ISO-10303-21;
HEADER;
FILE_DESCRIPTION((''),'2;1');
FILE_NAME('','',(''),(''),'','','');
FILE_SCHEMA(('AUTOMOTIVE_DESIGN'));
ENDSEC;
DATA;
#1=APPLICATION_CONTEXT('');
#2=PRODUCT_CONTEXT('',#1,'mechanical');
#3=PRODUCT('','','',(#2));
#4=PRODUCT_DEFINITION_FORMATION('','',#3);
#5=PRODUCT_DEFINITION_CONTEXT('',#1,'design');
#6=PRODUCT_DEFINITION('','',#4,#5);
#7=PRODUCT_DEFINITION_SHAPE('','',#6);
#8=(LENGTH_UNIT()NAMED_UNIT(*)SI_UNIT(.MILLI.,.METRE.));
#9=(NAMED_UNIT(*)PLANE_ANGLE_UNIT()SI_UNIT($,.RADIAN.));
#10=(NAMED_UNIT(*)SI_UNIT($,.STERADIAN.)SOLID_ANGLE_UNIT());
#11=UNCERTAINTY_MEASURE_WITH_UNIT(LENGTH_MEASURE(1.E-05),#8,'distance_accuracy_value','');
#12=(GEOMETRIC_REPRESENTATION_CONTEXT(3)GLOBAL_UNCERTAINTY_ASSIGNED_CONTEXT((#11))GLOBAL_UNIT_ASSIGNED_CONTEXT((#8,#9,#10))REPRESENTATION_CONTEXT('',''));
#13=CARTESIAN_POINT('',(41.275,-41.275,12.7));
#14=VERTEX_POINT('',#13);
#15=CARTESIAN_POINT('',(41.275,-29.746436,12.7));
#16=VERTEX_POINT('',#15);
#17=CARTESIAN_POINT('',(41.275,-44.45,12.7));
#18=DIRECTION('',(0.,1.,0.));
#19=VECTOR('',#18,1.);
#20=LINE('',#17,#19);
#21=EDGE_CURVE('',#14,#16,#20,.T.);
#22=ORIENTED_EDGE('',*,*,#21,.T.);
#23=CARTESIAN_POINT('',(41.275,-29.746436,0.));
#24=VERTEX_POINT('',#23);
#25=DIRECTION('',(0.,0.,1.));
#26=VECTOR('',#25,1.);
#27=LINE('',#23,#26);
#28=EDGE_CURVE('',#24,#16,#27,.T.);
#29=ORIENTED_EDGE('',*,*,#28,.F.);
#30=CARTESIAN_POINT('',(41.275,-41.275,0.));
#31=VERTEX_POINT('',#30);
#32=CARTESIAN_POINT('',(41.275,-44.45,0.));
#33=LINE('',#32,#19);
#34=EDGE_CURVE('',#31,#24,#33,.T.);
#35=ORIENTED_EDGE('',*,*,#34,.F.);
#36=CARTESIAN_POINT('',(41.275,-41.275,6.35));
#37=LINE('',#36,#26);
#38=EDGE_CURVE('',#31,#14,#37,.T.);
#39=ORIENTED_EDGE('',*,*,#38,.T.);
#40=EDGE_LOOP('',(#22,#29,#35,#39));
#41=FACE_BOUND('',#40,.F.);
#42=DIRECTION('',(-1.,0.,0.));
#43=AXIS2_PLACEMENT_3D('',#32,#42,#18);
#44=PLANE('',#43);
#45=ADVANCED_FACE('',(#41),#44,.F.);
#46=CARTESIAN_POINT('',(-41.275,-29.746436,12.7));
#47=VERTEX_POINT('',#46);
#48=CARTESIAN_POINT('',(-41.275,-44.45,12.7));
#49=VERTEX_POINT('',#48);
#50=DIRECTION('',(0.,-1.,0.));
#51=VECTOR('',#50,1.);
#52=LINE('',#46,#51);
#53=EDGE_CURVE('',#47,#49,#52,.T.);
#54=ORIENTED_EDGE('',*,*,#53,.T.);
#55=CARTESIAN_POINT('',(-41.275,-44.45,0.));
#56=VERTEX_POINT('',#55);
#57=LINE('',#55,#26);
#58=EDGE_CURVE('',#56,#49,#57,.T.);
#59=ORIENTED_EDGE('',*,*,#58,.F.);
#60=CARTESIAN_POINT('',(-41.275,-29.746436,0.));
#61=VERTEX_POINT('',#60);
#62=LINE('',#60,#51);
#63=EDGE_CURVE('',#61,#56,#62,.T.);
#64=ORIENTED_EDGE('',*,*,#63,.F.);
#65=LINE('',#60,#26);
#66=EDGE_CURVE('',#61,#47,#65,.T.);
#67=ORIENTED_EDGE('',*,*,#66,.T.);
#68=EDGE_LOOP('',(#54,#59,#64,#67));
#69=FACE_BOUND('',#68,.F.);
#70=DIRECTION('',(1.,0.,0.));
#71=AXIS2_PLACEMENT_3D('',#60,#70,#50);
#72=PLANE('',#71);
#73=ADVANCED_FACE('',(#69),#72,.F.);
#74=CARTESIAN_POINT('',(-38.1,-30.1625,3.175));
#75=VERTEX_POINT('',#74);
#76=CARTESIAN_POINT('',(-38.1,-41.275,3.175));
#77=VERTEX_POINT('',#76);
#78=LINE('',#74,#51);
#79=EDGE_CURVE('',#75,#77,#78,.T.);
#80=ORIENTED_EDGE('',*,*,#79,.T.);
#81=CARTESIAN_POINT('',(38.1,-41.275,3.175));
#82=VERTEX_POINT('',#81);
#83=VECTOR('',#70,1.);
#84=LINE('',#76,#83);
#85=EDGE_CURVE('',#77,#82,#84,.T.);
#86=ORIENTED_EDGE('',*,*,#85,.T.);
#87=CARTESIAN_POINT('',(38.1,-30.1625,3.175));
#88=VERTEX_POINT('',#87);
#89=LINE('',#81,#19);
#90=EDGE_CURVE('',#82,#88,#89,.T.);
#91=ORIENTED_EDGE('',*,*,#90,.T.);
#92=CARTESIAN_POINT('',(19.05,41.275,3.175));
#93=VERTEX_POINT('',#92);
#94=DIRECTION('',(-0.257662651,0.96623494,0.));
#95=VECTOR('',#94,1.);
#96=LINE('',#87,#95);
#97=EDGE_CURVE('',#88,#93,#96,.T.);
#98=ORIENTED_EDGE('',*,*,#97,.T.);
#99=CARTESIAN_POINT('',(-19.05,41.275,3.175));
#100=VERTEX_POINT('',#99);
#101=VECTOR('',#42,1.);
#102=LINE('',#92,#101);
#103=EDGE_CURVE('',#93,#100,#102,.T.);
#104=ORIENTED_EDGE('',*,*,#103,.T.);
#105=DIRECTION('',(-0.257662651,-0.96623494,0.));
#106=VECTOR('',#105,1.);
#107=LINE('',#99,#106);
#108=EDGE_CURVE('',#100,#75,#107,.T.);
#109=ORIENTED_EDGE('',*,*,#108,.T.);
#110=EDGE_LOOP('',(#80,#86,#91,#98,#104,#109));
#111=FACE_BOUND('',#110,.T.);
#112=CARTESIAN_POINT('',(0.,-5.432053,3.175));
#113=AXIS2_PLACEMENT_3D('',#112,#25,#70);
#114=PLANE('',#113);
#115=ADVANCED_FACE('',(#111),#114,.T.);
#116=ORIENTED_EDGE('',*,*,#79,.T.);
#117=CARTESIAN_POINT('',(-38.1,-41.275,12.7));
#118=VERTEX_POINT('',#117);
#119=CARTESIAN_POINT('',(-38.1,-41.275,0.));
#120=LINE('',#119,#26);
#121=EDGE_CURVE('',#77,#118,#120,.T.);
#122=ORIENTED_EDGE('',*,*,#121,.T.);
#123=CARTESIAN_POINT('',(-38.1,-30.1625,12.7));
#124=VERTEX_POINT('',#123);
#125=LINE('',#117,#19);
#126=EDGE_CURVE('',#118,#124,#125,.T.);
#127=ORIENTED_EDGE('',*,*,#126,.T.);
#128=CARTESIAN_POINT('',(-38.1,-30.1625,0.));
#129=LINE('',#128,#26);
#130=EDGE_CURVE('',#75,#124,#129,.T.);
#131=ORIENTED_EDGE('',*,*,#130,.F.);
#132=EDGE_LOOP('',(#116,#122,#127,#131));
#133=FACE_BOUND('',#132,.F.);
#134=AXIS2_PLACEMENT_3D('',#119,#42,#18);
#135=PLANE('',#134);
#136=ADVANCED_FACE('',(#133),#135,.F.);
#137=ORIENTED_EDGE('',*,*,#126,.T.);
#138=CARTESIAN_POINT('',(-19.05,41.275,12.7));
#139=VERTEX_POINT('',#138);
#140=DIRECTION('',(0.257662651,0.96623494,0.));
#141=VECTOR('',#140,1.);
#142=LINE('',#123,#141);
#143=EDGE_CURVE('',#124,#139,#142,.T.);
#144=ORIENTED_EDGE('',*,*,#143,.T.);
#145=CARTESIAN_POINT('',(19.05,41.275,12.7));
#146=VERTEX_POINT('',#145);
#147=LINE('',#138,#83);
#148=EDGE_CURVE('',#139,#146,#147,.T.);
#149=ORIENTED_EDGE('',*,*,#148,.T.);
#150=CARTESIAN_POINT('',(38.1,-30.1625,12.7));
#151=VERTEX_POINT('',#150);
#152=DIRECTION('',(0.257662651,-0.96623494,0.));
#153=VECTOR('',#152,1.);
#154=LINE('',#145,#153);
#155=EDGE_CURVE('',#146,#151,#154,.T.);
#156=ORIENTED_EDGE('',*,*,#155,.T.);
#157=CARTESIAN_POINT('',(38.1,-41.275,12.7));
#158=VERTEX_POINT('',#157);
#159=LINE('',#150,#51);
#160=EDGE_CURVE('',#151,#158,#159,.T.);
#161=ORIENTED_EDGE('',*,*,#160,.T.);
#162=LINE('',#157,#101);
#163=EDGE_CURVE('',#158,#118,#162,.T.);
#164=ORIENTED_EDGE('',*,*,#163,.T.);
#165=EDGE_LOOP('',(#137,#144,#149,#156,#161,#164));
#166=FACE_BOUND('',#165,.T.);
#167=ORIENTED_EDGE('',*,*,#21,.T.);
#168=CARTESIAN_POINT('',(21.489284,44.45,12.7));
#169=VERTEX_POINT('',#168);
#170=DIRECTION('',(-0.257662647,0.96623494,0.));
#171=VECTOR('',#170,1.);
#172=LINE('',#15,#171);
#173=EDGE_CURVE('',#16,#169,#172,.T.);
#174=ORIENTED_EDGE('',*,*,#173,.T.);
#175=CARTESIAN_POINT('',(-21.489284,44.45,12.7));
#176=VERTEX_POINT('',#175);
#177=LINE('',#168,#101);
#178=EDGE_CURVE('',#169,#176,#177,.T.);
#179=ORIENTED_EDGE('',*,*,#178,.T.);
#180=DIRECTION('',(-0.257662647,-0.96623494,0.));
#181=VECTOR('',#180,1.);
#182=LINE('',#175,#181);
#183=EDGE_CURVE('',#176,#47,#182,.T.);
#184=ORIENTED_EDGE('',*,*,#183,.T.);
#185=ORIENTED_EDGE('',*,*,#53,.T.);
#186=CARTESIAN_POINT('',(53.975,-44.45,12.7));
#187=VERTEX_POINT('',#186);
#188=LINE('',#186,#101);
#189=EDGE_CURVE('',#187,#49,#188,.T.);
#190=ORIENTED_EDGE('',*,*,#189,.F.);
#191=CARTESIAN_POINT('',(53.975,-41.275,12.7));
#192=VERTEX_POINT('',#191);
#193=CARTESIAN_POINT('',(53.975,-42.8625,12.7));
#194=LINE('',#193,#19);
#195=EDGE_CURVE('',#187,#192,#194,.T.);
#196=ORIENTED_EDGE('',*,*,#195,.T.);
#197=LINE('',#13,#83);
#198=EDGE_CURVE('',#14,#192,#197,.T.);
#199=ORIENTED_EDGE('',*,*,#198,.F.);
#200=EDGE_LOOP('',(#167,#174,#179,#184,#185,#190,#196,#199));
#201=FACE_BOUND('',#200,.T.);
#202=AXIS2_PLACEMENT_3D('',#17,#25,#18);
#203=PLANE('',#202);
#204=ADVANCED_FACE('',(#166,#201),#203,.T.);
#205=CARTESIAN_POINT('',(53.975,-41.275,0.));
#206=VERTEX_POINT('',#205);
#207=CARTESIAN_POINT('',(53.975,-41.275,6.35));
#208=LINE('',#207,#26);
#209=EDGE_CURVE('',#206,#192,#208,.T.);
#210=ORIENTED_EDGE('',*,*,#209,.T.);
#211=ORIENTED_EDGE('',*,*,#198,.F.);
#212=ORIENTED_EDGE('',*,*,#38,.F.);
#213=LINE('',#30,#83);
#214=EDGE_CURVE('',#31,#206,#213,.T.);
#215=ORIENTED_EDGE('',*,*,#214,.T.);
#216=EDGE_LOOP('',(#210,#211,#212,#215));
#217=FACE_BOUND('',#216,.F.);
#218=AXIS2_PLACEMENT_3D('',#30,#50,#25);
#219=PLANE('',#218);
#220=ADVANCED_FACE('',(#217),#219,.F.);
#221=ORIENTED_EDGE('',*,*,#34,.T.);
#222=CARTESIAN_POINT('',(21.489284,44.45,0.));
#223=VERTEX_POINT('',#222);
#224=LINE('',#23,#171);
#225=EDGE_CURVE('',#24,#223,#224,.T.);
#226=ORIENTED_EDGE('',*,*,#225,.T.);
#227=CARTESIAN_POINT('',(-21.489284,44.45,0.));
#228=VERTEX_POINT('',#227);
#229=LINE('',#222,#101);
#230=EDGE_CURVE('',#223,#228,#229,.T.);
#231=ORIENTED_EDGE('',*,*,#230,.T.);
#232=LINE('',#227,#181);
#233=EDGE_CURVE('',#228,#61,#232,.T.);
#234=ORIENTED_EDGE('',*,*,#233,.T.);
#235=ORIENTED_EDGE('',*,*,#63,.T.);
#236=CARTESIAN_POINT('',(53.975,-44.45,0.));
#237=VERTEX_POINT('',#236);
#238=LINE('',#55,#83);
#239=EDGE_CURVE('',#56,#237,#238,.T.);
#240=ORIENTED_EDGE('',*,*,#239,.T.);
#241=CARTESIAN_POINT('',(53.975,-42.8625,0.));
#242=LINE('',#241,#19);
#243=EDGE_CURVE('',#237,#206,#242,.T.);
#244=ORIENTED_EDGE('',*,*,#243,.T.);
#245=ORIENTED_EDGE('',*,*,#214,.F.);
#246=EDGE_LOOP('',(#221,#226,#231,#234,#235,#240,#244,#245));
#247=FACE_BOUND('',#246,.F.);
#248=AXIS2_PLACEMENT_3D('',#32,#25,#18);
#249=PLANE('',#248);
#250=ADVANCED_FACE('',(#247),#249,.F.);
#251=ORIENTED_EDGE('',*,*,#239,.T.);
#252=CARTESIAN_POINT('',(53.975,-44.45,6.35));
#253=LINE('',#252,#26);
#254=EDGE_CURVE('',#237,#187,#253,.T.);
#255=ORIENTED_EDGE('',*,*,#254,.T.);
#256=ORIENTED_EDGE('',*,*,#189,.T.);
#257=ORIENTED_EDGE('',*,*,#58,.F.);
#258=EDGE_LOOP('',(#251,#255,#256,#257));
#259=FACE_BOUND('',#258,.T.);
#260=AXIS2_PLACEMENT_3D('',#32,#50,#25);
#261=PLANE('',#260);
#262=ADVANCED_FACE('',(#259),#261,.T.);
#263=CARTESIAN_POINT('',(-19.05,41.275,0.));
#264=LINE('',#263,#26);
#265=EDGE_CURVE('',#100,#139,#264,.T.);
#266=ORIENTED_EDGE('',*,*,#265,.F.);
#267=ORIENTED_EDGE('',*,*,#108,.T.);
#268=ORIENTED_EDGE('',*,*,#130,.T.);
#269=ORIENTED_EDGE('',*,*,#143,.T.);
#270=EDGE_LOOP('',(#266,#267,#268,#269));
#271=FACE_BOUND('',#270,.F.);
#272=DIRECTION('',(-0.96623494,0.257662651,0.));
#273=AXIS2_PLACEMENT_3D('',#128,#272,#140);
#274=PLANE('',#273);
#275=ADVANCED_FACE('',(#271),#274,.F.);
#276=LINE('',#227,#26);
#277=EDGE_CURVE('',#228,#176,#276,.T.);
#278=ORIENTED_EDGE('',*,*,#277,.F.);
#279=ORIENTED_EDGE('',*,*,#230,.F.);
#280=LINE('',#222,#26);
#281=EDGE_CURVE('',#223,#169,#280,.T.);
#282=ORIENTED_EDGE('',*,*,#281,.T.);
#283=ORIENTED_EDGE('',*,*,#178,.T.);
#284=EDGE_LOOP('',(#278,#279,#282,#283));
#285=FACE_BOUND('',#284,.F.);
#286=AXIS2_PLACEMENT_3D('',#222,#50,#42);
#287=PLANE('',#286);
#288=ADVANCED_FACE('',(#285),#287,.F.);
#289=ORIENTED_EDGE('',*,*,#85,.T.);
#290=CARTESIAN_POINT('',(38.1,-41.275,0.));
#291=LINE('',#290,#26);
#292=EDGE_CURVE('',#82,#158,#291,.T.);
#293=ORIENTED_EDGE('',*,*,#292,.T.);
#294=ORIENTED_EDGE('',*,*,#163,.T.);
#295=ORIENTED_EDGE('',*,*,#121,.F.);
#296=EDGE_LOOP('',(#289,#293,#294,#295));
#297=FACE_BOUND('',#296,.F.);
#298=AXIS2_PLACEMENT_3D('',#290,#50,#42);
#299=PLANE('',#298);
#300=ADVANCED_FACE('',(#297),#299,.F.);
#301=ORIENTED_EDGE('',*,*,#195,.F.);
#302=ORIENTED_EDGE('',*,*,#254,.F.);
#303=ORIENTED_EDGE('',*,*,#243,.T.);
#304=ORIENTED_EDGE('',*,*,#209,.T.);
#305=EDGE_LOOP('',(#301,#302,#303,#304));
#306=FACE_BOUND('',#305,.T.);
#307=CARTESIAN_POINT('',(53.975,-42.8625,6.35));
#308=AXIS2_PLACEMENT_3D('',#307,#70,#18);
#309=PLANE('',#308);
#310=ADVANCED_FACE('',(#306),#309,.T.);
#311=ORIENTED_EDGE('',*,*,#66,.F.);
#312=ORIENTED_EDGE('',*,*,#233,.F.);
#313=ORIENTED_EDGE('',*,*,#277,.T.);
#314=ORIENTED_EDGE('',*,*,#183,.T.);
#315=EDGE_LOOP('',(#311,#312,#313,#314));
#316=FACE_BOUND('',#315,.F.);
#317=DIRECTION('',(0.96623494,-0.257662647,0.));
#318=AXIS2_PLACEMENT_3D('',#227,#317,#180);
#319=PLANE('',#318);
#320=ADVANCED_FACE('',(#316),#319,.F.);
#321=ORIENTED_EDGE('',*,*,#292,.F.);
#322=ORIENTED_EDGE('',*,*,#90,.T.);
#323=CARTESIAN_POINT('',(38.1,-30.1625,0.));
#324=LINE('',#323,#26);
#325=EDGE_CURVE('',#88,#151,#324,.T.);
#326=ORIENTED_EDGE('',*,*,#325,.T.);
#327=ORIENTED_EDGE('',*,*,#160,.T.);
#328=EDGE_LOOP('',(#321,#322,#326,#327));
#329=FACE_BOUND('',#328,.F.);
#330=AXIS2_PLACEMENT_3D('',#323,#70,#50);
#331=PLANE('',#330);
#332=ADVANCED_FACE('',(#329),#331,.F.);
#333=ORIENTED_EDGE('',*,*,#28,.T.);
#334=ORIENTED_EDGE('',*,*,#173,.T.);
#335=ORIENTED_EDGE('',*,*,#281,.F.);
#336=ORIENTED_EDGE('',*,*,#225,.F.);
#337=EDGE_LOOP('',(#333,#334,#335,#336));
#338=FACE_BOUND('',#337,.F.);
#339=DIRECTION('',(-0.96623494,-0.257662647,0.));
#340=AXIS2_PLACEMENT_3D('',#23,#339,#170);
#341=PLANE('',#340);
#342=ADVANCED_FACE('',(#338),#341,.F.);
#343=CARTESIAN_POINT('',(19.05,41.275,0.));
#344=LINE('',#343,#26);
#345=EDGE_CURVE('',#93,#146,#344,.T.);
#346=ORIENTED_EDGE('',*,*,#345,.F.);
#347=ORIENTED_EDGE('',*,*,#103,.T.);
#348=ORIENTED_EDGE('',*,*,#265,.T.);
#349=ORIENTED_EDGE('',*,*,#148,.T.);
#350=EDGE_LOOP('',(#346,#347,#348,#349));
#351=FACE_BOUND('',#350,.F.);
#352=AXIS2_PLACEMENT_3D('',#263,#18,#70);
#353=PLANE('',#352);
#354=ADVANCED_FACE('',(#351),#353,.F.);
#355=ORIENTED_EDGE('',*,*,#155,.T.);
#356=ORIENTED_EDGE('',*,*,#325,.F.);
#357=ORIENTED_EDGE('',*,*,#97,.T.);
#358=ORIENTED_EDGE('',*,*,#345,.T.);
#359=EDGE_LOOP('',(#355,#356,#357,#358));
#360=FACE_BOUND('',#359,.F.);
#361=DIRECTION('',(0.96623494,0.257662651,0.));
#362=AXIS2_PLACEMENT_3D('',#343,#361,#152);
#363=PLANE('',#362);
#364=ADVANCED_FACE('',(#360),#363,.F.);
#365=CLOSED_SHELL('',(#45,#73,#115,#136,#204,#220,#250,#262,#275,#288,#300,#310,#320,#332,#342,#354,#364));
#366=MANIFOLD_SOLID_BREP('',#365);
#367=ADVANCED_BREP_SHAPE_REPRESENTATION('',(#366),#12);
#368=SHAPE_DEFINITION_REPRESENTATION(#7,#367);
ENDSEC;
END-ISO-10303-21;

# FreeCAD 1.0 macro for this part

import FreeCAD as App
import Part
import Sketcher
from FreeCAD import Vector
Q = App.Units.Quantity


def add_polygon(sketch, points):
    """Adds a closed chain of lines whose ends are joined by coincident constraints."""
    first, n = sketch.GeometryCount, len(points)
    for a, b in zip(points, points[1:] + points[:1]):
        sketch.addGeometry(Part.LineSegment(App.Vector(*a, 0), App.Vector(*b, 0)), False)
    for i in range(n):
        sketch.addConstraint(Sketcher.Constraint("Coincident", first + i, 2, first + (i + 1) % n, 1))

doc = App.newDocument("Part")
body = doc.addObject("PartDesign::Body", "Body")

sketch1 = body.newObject("Sketcher::SketchObject", "Sketch")
sketch1.AttachmentSupport = (doc.getObject("XY_Plane"), [""])
sketch1.MapMode = "FlatFace"
add_polygon(sketch1, [(-38.1, -30.1625), (-38.1, -41.275), (38.1, -41.275), (38.1, -30.1625), (19.05, 41.275), (-19.05, 41.275)])
sketch1.addConstraint([
    Sketcher.Constraint("Vertical", 0),
    Sketcher.Constraint("Horizontal", 1),
    Sketcher.Constraint("Vertical", 2),
    Sketcher.Constraint("Horizontal", 4),
    Sketcher.Constraint("Symmetric", 2, 2, 5, 2, -2),
    Sketcher.Constraint("Equal", 3, 5),
    Sketcher.Constraint("DistanceX", 1, 1, 1, 2, Q("3 in")),
    Sketcher.Constraint("DistanceX", 4, 2, 4, 1, Q("1.5 in")),
    Sketcher.Constraint("DistanceY", 0, 2, 0, 1, Q("0.4375 in")),
    Sketcher.Constraint("DistanceY", 1, 2, 3, 2, Q("3.25 in")),
    Sketcher.Constraint("DistanceY", 0, 2, -1, 1, Q("1.625 in")),
])
pad1 = body.newObject("PartDesign::Pad", "Pad")
pad1.Profile = sketch1
pad1.Length = Q("0.125 in")

sketch2 = body.newObject("Sketcher::SketchObject", "Sketch001")
sketch2.AttachmentSupport = (doc.getObject("XY_Plane"), [""])
sketch2.MapMode = "FlatFace"
add_polygon(sketch2, [(21.489284, 44.45), (-21.489284, 44.45), (-41.275, -29.746436), (-41.275, -44.45), (41.275, -44.45), (41.275, -29.746436)])
add_polygon(sketch2, [(38.1, -41.275), (-38.1, -41.275), (-38.1, -30.1625), (-19.05, 41.275), (19.05, 41.275), (38.1, -30.1625)])
sketch2.addConstraint([
    Sketcher.Constraint("Horizontal", 0),
    Sketcher.Constraint("Vertical", 2),
    Sketcher.Constraint("Horizontal", 3),
    Sketcher.Constraint("Vertical", 4),
    Sketcher.Constraint("Horizontal", 6),
    Sketcher.Constraint("Vertical", 7),
    Sketcher.Constraint("Horizontal", 9),
    Sketcher.Constraint("Vertical", 11),
    Sketcher.Constraint("Symmetric", 1, 2, 4, 2, -2),
    Sketcher.Constraint("Symmetric", 7, 2, 10, 2, -2),
    Sketcher.Constraint("Parallel", 1, 8),
    Sketcher.Constraint("Parallel", 5, 10),
    Sketcher.Constraint("Equal", 1, 5),
    Sketcher.Constraint("DistanceX", 6, 2, 6, 1, Q("3 in")),
    Sketcher.Constraint("DistanceX", 9, 1, 9, 2, Q("1.5 in")),
    Sketcher.Constraint("DistanceX", 3, 1, 3, 2, Q("3.25 in")),
    Sketcher.Constraint("DistanceY", 2, 2, 0, 2, Q("3.5 in")),
    Sketcher.Constraint("DistanceY", 7, 1, 7, 2, Q("0.4375 in")),
    Sketcher.Constraint("DistanceY", -1, 1, 0, 2, Q("1.75 in")),
    Sketcher.Constraint("DistanceY", 6, 2, 8, 2, Q("3.25 in")),
    Sketcher.Constraint("DistanceY", 6, 2, -1, 1, Q("1.625 in")),
    Sketcher.Constraint("DistanceX", 0, 2, 0, 1, 42.978568),
])
pad2 = body.newObject("PartDesign::Pad", "Pad001")
pad2.Profile = sketch2
pad2.Length = Q("0.5 in")

sketch3 = body.newObject("Sketcher::SketchObject", "Sketch002")
sketch3.AttachmentSupport = (doc.getObject("YZ_Plane"), [""])
sketch3.MapMode = "FlatFace"
sketch3.AttachmentOffset = App.Placement(Vector(0, 0, 1.625 * 25.4), App.Rotation())
add_polygon(sketch3, [(-44.45, 12.7), (-44.45, 0), (-41.275, 0), (-41.275, 12.7)])
sketch3.addConstraint([
    Sketcher.Constraint("Vertical", 0),
    Sketcher.Constraint("Horizontal", 1),
    Sketcher.Constraint("Vertical", 2),
    Sketcher.Constraint("Horizontal", 3),
    Sketcher.Constraint("PointOnObject", 0, 2, -1),
    Sketcher.Constraint("DistanceY", 0, 2, 0, 1, Q("0.5 in")),
    Sketcher.Constraint("DistanceX", 1, 1, 1, 2, Q("0.125 in")),
    Sketcher.Constraint("DistanceX", 0, 2, -1, 1, Q("1.75 in")),
])
pad3 = body.newObject("PartDesign::Pad", "Pad002")
pad3.Profile = sketch3
pad3.Length = Q("0.5 in")

doc.recompute()
